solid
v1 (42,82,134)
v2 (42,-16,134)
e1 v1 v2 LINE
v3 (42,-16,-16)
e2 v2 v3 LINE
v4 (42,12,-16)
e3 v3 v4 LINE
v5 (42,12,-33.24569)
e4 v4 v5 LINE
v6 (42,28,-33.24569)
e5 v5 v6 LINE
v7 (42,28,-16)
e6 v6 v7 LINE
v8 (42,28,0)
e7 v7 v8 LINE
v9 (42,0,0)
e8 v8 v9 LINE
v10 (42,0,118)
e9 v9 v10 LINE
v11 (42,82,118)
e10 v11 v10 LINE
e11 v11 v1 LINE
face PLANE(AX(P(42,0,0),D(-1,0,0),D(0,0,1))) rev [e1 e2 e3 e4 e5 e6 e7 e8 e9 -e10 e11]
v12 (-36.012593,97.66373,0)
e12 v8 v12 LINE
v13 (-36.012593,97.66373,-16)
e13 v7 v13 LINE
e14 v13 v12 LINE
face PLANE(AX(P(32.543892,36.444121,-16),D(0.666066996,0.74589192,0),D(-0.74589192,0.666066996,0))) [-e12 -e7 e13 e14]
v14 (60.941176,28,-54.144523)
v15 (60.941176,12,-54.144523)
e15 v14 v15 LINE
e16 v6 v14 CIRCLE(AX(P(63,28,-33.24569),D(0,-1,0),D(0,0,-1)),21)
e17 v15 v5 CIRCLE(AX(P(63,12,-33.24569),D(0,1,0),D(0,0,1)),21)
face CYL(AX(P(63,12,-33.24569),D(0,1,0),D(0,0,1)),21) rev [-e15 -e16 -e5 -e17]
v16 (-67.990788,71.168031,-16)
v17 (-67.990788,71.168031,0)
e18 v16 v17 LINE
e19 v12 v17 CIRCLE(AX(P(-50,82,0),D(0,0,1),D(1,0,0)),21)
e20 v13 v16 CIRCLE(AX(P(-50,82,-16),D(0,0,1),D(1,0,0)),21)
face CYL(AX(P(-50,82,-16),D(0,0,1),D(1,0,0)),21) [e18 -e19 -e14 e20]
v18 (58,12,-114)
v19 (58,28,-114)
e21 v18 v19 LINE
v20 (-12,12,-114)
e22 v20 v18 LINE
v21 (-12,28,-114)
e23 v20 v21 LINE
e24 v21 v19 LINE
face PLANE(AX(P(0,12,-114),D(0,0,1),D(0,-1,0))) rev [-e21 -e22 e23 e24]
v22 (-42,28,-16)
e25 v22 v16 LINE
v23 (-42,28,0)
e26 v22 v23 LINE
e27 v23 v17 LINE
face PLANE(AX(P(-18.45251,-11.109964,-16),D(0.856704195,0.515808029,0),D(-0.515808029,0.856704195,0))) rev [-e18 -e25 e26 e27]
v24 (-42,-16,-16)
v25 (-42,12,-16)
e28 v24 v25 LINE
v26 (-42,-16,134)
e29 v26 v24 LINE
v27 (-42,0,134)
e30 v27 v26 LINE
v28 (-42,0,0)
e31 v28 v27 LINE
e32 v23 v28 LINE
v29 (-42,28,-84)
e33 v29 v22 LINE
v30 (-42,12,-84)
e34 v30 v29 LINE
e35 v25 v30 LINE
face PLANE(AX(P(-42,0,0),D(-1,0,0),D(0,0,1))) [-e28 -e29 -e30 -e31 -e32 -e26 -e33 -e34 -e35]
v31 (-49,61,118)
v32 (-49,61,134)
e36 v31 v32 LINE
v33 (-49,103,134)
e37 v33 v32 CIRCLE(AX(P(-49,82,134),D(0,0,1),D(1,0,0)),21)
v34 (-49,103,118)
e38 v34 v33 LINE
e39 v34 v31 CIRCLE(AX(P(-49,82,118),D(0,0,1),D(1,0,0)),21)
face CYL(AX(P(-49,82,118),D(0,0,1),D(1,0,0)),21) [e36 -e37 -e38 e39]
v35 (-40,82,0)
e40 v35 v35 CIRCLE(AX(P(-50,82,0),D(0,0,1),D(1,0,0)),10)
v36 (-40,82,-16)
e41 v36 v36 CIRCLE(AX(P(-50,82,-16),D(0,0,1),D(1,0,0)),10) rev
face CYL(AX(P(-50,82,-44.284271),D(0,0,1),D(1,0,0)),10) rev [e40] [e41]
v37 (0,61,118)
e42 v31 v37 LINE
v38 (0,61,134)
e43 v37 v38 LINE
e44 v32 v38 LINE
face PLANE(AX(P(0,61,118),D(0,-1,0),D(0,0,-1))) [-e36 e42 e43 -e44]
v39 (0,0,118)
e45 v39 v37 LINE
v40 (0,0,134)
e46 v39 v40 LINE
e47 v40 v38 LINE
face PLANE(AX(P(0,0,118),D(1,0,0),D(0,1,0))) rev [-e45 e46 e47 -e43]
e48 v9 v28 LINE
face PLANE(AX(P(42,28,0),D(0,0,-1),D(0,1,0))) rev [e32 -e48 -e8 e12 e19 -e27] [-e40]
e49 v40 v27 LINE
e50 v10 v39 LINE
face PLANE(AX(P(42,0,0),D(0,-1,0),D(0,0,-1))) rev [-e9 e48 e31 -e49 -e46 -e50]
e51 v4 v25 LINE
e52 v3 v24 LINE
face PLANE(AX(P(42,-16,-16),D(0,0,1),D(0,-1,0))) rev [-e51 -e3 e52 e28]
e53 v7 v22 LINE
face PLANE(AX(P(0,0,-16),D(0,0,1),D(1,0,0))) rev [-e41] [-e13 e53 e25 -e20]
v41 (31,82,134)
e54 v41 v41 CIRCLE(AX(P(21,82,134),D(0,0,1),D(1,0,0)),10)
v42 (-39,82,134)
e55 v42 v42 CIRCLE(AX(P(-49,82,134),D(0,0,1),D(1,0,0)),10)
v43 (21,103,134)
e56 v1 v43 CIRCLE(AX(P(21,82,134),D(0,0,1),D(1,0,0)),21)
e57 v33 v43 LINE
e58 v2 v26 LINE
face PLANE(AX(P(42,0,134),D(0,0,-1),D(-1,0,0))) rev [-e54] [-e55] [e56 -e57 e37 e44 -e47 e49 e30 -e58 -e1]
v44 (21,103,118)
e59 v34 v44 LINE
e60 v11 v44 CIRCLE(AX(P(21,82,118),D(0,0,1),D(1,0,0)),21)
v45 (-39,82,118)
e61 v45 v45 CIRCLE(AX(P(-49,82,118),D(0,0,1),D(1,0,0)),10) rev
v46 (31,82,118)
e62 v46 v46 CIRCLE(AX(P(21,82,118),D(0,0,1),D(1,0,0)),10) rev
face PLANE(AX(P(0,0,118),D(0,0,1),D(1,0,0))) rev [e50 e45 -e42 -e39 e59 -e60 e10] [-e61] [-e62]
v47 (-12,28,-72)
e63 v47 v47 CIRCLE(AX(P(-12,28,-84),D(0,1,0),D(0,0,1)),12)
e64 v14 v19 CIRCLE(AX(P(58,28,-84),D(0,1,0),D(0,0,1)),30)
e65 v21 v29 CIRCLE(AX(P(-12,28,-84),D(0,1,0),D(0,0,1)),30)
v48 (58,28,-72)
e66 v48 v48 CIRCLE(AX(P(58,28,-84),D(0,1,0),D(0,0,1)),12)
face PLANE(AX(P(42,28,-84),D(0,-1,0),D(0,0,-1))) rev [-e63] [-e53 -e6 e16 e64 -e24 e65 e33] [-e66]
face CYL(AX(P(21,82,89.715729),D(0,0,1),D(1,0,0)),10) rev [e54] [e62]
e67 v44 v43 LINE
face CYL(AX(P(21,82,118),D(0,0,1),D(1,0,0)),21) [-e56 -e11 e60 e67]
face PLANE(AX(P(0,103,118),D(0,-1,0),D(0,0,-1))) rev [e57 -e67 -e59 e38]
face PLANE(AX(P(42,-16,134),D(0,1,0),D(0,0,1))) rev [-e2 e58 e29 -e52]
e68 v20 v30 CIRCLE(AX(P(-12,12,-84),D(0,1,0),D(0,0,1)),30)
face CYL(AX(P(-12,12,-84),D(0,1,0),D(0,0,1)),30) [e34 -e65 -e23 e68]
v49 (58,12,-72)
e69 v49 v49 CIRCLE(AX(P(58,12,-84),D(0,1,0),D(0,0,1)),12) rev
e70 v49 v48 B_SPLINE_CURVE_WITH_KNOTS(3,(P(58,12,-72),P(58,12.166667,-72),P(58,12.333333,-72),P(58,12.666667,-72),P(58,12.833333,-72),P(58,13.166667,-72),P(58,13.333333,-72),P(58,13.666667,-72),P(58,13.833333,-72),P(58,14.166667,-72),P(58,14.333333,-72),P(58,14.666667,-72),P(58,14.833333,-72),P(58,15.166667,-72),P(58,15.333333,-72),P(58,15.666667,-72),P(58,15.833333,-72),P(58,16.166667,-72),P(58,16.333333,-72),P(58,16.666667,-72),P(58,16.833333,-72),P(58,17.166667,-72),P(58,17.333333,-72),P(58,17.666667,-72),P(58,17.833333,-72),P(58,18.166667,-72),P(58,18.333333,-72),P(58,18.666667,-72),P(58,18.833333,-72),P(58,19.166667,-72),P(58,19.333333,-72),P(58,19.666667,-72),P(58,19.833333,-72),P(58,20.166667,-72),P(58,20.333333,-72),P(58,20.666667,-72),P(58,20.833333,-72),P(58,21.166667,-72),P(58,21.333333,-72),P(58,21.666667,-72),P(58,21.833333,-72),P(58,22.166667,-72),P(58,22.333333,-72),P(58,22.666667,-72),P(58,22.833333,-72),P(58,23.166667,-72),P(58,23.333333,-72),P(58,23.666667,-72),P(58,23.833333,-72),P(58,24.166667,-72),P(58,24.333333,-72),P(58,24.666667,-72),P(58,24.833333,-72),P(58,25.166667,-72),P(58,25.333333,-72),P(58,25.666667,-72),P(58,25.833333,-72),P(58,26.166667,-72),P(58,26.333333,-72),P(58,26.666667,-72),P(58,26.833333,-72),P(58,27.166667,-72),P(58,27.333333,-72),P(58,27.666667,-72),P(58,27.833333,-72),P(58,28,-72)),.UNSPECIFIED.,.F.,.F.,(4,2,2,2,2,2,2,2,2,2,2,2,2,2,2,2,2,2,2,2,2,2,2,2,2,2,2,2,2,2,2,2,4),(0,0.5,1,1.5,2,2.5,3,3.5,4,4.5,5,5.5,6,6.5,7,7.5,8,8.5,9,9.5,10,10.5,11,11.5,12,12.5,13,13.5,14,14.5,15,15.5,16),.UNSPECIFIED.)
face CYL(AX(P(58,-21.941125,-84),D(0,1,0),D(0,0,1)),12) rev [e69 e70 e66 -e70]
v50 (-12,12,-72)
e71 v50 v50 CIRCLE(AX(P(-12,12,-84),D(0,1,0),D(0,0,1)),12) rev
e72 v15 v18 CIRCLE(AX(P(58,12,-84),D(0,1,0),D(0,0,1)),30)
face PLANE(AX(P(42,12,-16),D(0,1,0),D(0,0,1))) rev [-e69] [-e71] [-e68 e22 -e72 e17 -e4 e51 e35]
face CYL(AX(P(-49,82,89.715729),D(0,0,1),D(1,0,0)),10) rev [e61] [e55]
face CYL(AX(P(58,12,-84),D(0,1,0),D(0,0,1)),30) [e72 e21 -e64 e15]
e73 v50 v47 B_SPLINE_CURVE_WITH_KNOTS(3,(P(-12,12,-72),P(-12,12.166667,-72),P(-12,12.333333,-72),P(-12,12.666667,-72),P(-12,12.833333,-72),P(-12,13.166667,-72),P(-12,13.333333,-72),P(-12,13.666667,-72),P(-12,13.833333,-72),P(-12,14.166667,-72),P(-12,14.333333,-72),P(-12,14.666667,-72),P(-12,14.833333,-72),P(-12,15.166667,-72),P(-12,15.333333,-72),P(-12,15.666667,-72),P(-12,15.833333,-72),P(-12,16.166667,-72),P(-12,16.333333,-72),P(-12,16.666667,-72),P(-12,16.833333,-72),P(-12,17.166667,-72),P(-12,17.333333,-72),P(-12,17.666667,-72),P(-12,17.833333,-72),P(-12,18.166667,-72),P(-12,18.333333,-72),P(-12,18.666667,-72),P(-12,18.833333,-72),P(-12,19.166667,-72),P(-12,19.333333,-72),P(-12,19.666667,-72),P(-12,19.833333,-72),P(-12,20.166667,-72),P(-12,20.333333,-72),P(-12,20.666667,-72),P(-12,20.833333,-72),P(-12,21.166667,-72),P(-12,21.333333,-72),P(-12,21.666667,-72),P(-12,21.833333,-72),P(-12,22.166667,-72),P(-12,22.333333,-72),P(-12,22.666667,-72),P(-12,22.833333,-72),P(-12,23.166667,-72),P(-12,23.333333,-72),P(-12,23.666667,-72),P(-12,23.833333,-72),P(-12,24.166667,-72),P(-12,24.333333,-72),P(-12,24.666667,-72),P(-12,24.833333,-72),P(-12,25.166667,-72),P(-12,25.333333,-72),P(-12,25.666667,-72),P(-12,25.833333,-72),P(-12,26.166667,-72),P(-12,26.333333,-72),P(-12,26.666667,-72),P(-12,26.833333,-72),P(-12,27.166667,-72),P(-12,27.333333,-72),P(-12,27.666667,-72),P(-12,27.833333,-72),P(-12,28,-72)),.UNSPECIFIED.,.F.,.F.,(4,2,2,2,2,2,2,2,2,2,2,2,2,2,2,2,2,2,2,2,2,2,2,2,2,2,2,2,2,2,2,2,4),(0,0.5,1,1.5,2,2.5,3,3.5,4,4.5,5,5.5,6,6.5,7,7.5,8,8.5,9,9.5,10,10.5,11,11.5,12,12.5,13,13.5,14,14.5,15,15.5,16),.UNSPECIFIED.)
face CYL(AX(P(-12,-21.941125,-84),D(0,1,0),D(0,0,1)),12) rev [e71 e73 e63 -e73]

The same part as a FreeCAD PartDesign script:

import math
import FreeCAD as App
import Part
import Sketcher
from FreeCAD import Vector
Q = App.Units.Quantity


def edges_at(feature, points):
    """Names of the edges that pass closest to the given points."""
    edges = feature.Shape.Edges
    near = lambda p: min(range(len(edges)), key=lambda i: edges[i].distToShape(Part.Vertex(*p))[0])
    return sorted({f"Edge{near(p) + 1}" for p in points})


def add_polygon(sketch, points):
    """Adds a closed chain of lines whose ends are joined by coincident constraints."""
    first, n = sketch.GeometryCount, len(points)
    for a, b in zip(points, points[1:] + points[:1]):
        sketch.addGeometry(Part.LineSegment(App.Vector(*a, 0), App.Vector(*b, 0)), False)
    for i in range(n):
        sketch.addConstraint(Sketcher.Constraint("Coincident", first + i, 2, first + (i + 1) % n, 1))

doc = App.newDocument("Part")
params = doc.addObject("Spreadsheet::Sheet", "Params")
for row, (alias, value) in enumerate([
    ("sketch1_width", "16 mm"),
    ("sketch1_width2", "28 mm"),
    ("sketch1_height", "134 mm"),
    ("sketch1_height2", "150 mm"),
    ("sketch1_height3", "68 mm"),
    ("pad1_length", "84 mm"),
    ("sketch2_radius", "21 mm"),
    ("sketch2_width", "84 mm"),
    ("pad2_length", "16 mm"),
    ("sketch3_diameter", "20 mm"),
    ("pocket1_length", "16 mm"),
    ("sketch4_radius", "30 mm"),
    ("sketch4_width", "70 mm"),
    ("pad3_length", "16 mm"),
    ("sketch5_diameter", "24 mm"),
    ("pocket2_length", "16 mm"),
    ("fillet_radius", "21 mm"),
    ("sketch6_radius", "21 mm"),
    ("sketch6_width", "42 mm"),
    ("sketch6_width2", "70 mm"),
    ("sketch6_height", "61 mm"),
    ("pad4_length", "16 mm"),
    ("sketch7_diameter", "20 mm"),
    ("pocket3_length", "16 mm"),
], start=1):
    params.set(f"A{row}", alias)
    params.set(f"B{row}", "=" + value)
    params.setAlias(f"B{row}", alias)

body = doc.addObject("PartDesign::Body", "Body")

# Sketch on YZ plane
sketch1 = doc.addObject("Sketcher::SketchObject", "Sketch")
body.addObject(sketch1)
sketch1.AttachmentSupport = (doc.YZ_Plane, [""])
sketch1.MapMode = "FlatFace"
add_polygon(sketch1, [(0, 0), (0, 134), (-16, 134), (-16, -16), (12, -16), (12, -84), (28, -84), (28, 0)])  # lines 0-7
sketch1.addConstraint([
    Sketcher.Constraint("Vertical", 0),
    Sketcher.Constraint("Horizontal", 1),
    Sketcher.Constraint("Vertical", 2),
    Sketcher.Constraint("Horizontal", 3),
    Sketcher.Constraint("Vertical", 4),
    Sketcher.Constraint("Horizontal", 5),
    Sketcher.Constraint("Vertical", 6),
    Sketcher.Constraint("Horizontal", 7),
    Sketcher.Constraint("Coincident", 7, 2, -1, 1),
    Sketcher.Constraint("Equal", 1, 5),
    Sketcher.Constraint("DistanceX", 1, 2, 1, 1, Q("16 mm")),
    Sketcher.Constraint("DistanceX", 3, 1, 3, 2, Q("28 mm")),
    Sketcher.Constraint("DistanceY", 0, 1, 0, 2, Q("134 mm")),
    Sketcher.Constraint("DistanceY", 2, 2, 2, 1, Q("150 mm")),
    Sketcher.Constraint("DistanceY", 4, 2, 4, 1, Q("68 mm")),
])
sketch1.setExpression("Constraints[18]", "Params.sketch1_width")
sketch1.setExpression("Constraints[19]", "Params.sketch1_width2")
sketch1.setExpression("Constraints[20]", "Params.sketch1_height")
sketch1.setExpression("Constraints[21]", "Params.sketch1_height2")
sketch1.setExpression("Constraints[22]", "Params.sketch1_height3")
pad1 = doc.addObject("PartDesign::Pad", "Pad")
body.addObject(pad1)
pad1.Profile = sketch1
pad1.setExpression("Length", "Params.pad1_length")
pad1.Midplane = True

# Sketch on XY plane
sketch2 = doc.addObject("Sketcher::SketchObject", "Sketch001")
body.addObject(sketch2)
sketch2.AttachmentSupport = (doc.XY_Plane, [""])
sketch2.MapMode = "FlatFace"
sketch2.addGeometry([
    Part.LineSegment(Vector(-68, 71, 0), Vector(-42, 28, 0)),
    Part.LineSegment(Vector(-42, 28, 0), Vector(42, 28, 0)),
    Part.LineSegment(Vector(42, 28, 0), Vector(-36, 98, 0)),
    Part.ArcOfCircle(Part.Circle(Vector(-50, 82, 0), Vector(0, 0, 1), 21), math.radians(48), math.radians(211)),
], False)
sketch2.addConstraint([
    Sketcher.Constraint("Coincident", 0, 2, 1, 1),
    Sketcher.Constraint("Coincident", 1, 2, 2, 1),
    Sketcher.Constraint("Tangent", 2, 2, 3, 1),
    Sketcher.Constraint("Tangent", 3, 2, 0, 1),
    Sketcher.Constraint("Horizontal", 1),
    Sketcher.Constraint("Radius", 3, Q("21 mm")),
    Sketcher.Constraint("DistanceX", 1, 1, 1, 2, Q("84 mm")),
    Sketcher.Constraint("DistanceX", 3, 3, -1, 1, Q("50 mm")),
    Sketcher.Constraint("DistanceY", -1, 1, 3, 3, Q("82 mm")),
    Sketcher.Constraint("DistanceX", 0, 2, -1, 1, Q("42 mm")),
    Sketcher.Constraint("DistanceY", -1, 1, 0, 2, Q("28 mm")),
])
sketch2.setExpression("Constraints[5]", "Params.sketch2_radius")
sketch2.setExpression("Constraints[6]", "Params.sketch2_width")
pad2 = doc.addObject("PartDesign::Pad", "Pad001")
body.addObject(pad2)
pad2.Profile = sketch2
pad2.setExpression("Length", "Params.pad2_length")
pad2.Reversed = True

# Sketch on XY plane
sketch3 = doc.addObject("Sketcher::SketchObject", "Sketch002")
body.addObject(sketch3)
sketch3.AttachmentSupport = (doc.XY_Plane, [""])
sketch3.MapMode = "FlatFace"
sketch3.addGeometry(Part.Circle(Vector(-50, 82, 0), Vector(0, 0, 1), 10), False)
sketch3.addConstraint([
    Sketcher.Constraint("Diameter", 0, Q("20 mm")),
    Sketcher.Constraint("DistanceX", 0, 3, -1, 1, Q("50 mm")),
    Sketcher.Constraint("DistanceY", -1, 1, 0, 3, Q("82 mm")),
])
sketch3.setExpression("Constraints[0]", "Params.sketch3_diameter")
pocket1 = doc.addObject("PartDesign::Pocket", "Pocket")
body.addObject(pocket1)
pocket1.Profile = sketch3
pocket1.setExpression("Length", "Params.pocket1_length")

# Sketch on XZ plane
sketch4 = doc.addObject("Sketcher::SketchObject", "Sketch003")
body.addObject(sketch4)
sketch4.AttachmentSupport = (doc.XZ_Plane, [""])
sketch4.MapMode = "FlatFace"
sketch4.AttachmentOffset = App.Placement(Vector(0, 0, -28), App.Rotation())
sketch4.addGeometry([
    Part.LineSegment(Vector(58, -114, 0), Vector(-12, -114, 0)),
    Part.ArcOfCircle(Part.Circle(Vector(-12, -84, 0), Vector(0, 0, 1), 30), math.radians(90), math.radians(270)),
    Part.LineSegment(Vector(-12, -54, 0), Vector(58, -54, 0)),
    Part.ArcOfCircle(Part.Circle(Vector(58, -84, 0), Vector(0, 0, 1), 30), math.radians(-90), math.radians(90)),
], False)
sketch4.addConstraint([
    Sketcher.Constraint("Tangent", 0, 2, 1, 2),
    Sketcher.Constraint("Tangent", 1, 1, 2, 1),
    Sketcher.Constraint("Tangent", 2, 2, 3, 2),
    Sketcher.Constraint("Tangent", 3, 1, 0, 1),
    Sketcher.Constraint("Horizontal", 0),
    Sketcher.Constraint("Horizontal", 2),
    Sketcher.Constraint("Radius", 1, Q("30 mm")),
    Sketcher.Constraint("DistanceX", 0, 2, 0, 1, Q("70 mm")),
    Sketcher.Constraint("DistanceX", 1, 3, -1, 1, Q("12 mm")),
    Sketcher.Constraint("DistanceY", 1, 3, -1, 1, Q("84 mm")),
])
sketch4.setExpression("Constraints[6]", "Params.sketch4_radius")
sketch4.setExpression("Constraints[7]", "Params.sketch4_width")
pad3 = doc.addObject("PartDesign::Pad", "Pad002")
body.addObject(pad3)
pad3.Profile = sketch4
pad3.setExpression("Length", "Params.pad3_length")

# Sketch on XZ plane
sketch5 = doc.addObject("Sketcher::SketchObject", "Sketch004")
body.addObject(sketch5)
sketch5.AttachmentSupport = (doc.XZ_Plane, [""])
sketch5.MapMode = "FlatFace"
sketch5.AttachmentOffset = App.Placement(Vector(0, 0, -28), App.Rotation())
sketch5.addGeometry([
    Part.Circle(Vector(-12, -84, 0), Vector(0, 0, 1), 12),
    Part.Circle(Vector(58, -84, 0), Vector(0, 0, 1), 12),
], False)
sketch5.addConstraint([
    Sketcher.Constraint("Equal", 0, 1),
    Sketcher.Constraint("Horizontal", 0, 3, 1, 3),
    Sketcher.Constraint("Diameter", 0, Q("24 mm")),
    Sketcher.Constraint("DistanceX", 0, 3, -1, 1, Q("12 mm")),
    Sketcher.Constraint("DistanceY", 0, 3, -1, 1, Q("84 mm")),
    Sketcher.Constraint("DistanceX", -1, 1, 1, 3, Q("58 mm")),
])
sketch5.setExpression("Constraints[2]", "Params.sketch5_diameter")
pocket2 = doc.addObject("PartDesign::Pocket", "Pocket001")
body.addObject(pocket2)
pocket2.Profile = sketch5
pocket2.setExpression("Length", "Params.pocket2_length")
pocket2.Reversed = True
doc.recompute()

fillet = doc.addObject("PartDesign::Fillet", "Fillet")
body.addObject(fillet)
fillet.Base = (pocket2, edges_at(pocket2, [(42, 20, -54)]))
fillet.setExpression("Radius", "Params.fillet_radius")

# Sketch on XY plane
sketch6 = doc.addObject("Sketcher::SketchObject", "Sketch005")
body.addObject(sketch6)
sketch6.AttachmentSupport = (doc.XY_Plane, [""])
sketch6.MapMode = "FlatFace"
sketch6.AttachmentOffset = App.Placement(Vector(0, 0, 134), App.Rotation())
sketch6.addGeometry([
    Part.LineSegment(Vector(0, 61, 0), Vector(0, 0, 0)),  # 0
    Part.LineSegment(Vector(0, 0, 0), Vector(42, 0, 0)),  # 1
    Part.LineSegment(Vector(42, 0, 0), Vector(42, 82, 0)),  # 2
    Part.ArcOfCircle(Part.Circle(Vector(21, 82, 0), Vector(0, 0, 1), 21), math.radians(0), math.radians(90)),  # 3
    Part.LineSegment(Vector(21, 103, 0), Vector(-49, 103, 0)),  # 4
    Part.ArcOfCircle(Part.Circle(Vector(-49, 82, 0), Vector(0, 0, 1), 21), math.radians(90), math.radians(270)),  # 5
    Part.LineSegment(Vector(-49, 61, 0), Vector(0, 61, 0)),  # 6
], False)
sketch6.addConstraint([
    Sketcher.Constraint("Coincident", 0, 2, 1, 1),
    Sketcher.Constraint("Coincident", 1, 2, 2, 1),
    Sketcher.Constraint("Tangent", 2, 2, 3, 1),
    Sketcher.Constraint("Tangent", 3, 2, 4, 1),
    Sketcher.Constraint("Tangent", 4, 2, 5, 1),
    Sketcher.Constraint("Tangent", 5, 2, 6, 1),
    Sketcher.Constraint("Coincident", 6, 2, 0, 1),
    Sketcher.Constraint("Vertical", 0),
    Sketcher.Constraint("Horizontal", 1),
    Sketcher.Constraint("Vertical", 2),
    Sketcher.Constraint("Horizontal", 4),
    Sketcher.Constraint("Horizontal", 6),
    Sketcher.Constraint("Coincident", 0, 2, -1, 1),
    Sketcher.Constraint("Equal", 3, 5),
    Sketcher.Constraint("Radius", 3, Q("21 mm")),
    Sketcher.Constraint("DistanceX", 1, 1, 1, 2, Q("42 mm")),
    Sketcher.Constraint("DistanceX", 4, 2, 4, 1, Q("70 mm")),
    Sketcher.Constraint("DistanceY", 0, 2, 0, 1, Q("61 mm")),
])
sketch6.setExpression("Constraints[14]", "Params.sketch6_radius")
sketch6.setExpression("Constraints[15]", "Params.sketch6_width")
sketch6.setExpression("Constraints[16]", "Params.sketch6_width2")
sketch6.setExpression("Constraints[17]", "Params.sketch6_height")
pad4 = doc.addObject("PartDesign::Pad", "Pad003")
body.addObject(pad4)
pad4.Profile = sketch6
pad4.setExpression("Length", "Params.pad4_length")
pad4.Reversed = True

# Sketch on XY plane
sketch7 = doc.addObject("Sketcher::SketchObject", "Sketch006")
body.addObject(sketch7)
sketch7.AttachmentSupport = (doc.XY_Plane, [""])
sketch7.MapMode = "FlatFace"
sketch7.AttachmentOffset = App.Placement(Vector(0, 0, 134), App.Rotation())
sketch7.addGeometry([
    Part.Circle(Vector(-49, 82, 0), Vector(0, 0, 1), 10),
    Part.Circle(Vector(21, 82, 0), Vector(0, 0, 1), 10),
], False)
sketch7.addConstraint([
    Sketcher.Constraint("Equal", 0, 1),
    Sketcher.Constraint("Horizontal", 0, 3, 1, 3),
    Sketcher.Constraint("Diameter", 0, Q("20 mm")),
    Sketcher.Constraint("DistanceX", 0, 3, -1, 1, Q("49 mm")),
    Sketcher.Constraint("DistanceY", -1, 1, 0, 3, Q("82 mm")),
    Sketcher.Constraint("DistanceX", -1, 1, 1, 3, Q("21 mm")),
])
sketch7.setExpression("Constraints[2]", "Params.sketch7_diameter")
pocket3 = doc.addObject("PartDesign::Pocket", "Pocket002")
body.addObject(pocket3)
pocket3.Profile = sketch7
pocket3.setExpression("Length", "Params.pocket3_length")

doc.recompute()
